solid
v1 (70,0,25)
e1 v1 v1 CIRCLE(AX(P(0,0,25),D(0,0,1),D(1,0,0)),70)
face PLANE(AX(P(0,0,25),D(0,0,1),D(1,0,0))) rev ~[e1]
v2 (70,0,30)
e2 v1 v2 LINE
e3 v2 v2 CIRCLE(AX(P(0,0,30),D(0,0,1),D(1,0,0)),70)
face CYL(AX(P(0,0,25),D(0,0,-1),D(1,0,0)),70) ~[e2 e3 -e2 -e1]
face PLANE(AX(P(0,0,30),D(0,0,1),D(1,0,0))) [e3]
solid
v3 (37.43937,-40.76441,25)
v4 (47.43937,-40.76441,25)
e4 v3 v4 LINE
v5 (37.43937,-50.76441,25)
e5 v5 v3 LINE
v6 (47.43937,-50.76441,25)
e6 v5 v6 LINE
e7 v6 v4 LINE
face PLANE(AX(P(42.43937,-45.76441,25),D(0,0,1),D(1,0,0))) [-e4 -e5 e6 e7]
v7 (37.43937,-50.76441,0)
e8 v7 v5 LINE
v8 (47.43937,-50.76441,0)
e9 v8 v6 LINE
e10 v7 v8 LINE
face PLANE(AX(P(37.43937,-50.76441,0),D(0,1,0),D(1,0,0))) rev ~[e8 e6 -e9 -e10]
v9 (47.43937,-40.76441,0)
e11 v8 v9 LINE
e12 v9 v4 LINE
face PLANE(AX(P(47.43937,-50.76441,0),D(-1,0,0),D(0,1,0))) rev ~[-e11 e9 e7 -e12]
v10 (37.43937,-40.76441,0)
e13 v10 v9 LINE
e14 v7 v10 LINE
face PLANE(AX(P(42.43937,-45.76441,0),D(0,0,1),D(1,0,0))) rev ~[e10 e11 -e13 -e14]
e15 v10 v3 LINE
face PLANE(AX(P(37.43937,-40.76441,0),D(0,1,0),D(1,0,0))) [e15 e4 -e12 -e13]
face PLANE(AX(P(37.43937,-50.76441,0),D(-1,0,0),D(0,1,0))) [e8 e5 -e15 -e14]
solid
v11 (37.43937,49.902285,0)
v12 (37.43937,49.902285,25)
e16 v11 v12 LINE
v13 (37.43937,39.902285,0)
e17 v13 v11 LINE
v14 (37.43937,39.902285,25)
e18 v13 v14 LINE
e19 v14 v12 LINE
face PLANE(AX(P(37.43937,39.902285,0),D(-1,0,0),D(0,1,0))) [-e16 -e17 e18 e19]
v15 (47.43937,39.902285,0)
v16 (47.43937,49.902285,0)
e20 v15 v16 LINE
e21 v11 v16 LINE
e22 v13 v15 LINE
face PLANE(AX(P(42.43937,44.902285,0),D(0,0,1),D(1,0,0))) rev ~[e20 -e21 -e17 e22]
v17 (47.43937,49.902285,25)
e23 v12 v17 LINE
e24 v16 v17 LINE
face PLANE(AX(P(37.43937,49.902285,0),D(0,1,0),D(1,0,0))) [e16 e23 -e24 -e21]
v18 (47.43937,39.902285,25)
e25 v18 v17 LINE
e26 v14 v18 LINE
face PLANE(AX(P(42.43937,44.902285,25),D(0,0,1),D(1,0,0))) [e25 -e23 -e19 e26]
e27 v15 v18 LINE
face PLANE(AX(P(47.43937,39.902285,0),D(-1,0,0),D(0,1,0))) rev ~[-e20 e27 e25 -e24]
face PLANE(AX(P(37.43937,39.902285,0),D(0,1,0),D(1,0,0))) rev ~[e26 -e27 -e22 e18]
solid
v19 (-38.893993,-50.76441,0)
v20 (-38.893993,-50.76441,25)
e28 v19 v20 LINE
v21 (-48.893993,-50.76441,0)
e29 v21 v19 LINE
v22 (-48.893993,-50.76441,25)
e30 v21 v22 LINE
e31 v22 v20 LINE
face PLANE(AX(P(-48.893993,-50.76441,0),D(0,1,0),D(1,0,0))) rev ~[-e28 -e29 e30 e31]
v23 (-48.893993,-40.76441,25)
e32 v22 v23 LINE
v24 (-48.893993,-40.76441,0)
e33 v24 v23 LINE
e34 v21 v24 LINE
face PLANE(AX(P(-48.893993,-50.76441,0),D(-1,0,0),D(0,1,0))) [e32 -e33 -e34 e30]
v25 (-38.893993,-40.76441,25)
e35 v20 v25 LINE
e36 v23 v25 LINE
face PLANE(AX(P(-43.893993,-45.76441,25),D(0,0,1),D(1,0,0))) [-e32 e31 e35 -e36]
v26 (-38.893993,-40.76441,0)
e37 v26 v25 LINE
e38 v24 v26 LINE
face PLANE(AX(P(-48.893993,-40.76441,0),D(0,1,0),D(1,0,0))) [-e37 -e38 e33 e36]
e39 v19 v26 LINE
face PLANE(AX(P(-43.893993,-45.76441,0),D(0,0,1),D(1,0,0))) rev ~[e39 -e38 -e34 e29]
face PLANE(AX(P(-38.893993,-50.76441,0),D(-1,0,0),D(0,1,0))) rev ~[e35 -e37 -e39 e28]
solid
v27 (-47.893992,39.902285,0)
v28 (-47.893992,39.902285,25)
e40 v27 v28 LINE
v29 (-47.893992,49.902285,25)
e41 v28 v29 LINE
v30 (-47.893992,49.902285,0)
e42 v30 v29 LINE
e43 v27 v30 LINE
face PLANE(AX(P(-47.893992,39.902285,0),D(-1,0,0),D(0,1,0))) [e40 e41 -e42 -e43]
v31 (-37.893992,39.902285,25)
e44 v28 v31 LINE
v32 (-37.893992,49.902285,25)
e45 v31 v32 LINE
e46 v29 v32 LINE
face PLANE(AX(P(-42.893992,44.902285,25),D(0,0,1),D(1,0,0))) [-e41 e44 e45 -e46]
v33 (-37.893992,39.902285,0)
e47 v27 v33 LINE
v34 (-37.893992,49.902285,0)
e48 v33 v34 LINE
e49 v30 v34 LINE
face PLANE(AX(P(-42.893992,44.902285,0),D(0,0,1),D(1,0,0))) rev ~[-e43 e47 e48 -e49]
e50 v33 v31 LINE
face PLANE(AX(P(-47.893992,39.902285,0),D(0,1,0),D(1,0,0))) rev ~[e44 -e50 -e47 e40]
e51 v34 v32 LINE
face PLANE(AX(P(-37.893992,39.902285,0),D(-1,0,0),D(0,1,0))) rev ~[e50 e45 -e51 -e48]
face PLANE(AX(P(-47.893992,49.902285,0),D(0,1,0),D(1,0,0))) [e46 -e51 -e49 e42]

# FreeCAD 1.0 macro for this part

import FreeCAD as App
import Part
import Sketcher

V = App.Vector

doc = App.newDocument("Part")
params = doc.addObject("Spreadsheet::Sheet", "Params")
for row, (alias, value) in enumerate([
    ("sketch1_width", "10 mm"),
    ("pad1_length", "25 mm"),
    ("sketch2_diameter", "140 mm"),
    ("pad2_length", "5 mm"),
], start=1):
    params.set(f"A{row}", alias)
    params.set(f"B{row}", "=" + value)
    params.setAlias(f"B{row}", alias)

body = doc.addObject("PartDesign::Body", "Body")
body.AllowCompound = True

# Sketch on XY plane
sketch1 = doc.addObject("Sketcher::SketchObject", "Sketch")
body.addObject(sketch1)
sketch1.AttachmentSupport = (doc.XY_Plane, [""])
sketch1.MapMode = "FlatFace"
sketch1.addGeometry([
    Part.LineSegment(V(-48, 50, 0), V(-48, 40, 0)),  # 0
    Part.LineSegment(V(-48, 40, 0), V(-38, 40, 0)),  # 1
    Part.LineSegment(V(-38, 40, 0), V(-38, 50, 0)),  # 2
    Part.LineSegment(V(-38, 50, 0), V(-48, 50, 0)),  # 3
    Part.LineSegment(V(37, 50, 0), V(37, 40, 0)),  # 4
    Part.LineSegment(V(37, 40, 0), V(47, 40, 0)),  # 5
    Part.LineSegment(V(47, 40, 0), V(47, 50, 0)),  # 6
    Part.LineSegment(V(47, 50, 0), V(37, 50, 0)),  # 7
    Part.LineSegment(V(37, -41, 0), V(37, -51, 0)),  # 8
    Part.LineSegment(V(37, -51, 0), V(47, -51, 0)),  # 9
    Part.LineSegment(V(47, -51, 0), V(47, -41, 0)),  # 10
    Part.LineSegment(V(47, -41, 0), V(37, -41, 0)),  # 11
    Part.LineSegment(V(-49, -41, 0), V(-49, -51, 0)),  # 12
    Part.LineSegment(V(-49, -51, 0), V(-39, -51, 0)),  # 13
    Part.LineSegment(V(-39, -51, 0), V(-39, -41, 0)),  # 14
    Part.LineSegment(V(-39, -41, 0), V(-49, -41, 0)),  # 15
], False)
sketch1.addConstraint([
    Sketcher.Constraint("Coincident", 0, 2, 1, 1),
    Sketcher.Constraint("Coincident", 1, 2, 2, 1),
    Sketcher.Constraint("Coincident", 2, 2, 3, 1),
    Sketcher.Constraint("Coincident", 3, 2, 0, 1),
    Sketcher.Constraint("Coincident", 4, 2, 5, 1),
    Sketcher.Constraint("Coincident", 5, 2, 6, 1),
    Sketcher.Constraint("Coincident", 6, 2, 7, 1),
    Sketcher.Constraint("Coincident", 7, 2, 4, 1),
    Sketcher.Constraint("Coincident", 8, 2, 9, 1),
    Sketcher.Constraint("Coincident", 9, 2, 10, 1),
    Sketcher.Constraint("Coincident", 10, 2, 11, 1),
    Sketcher.Constraint("Coincident", 11, 2, 8, 1),
    Sketcher.Constraint("Coincident", 12, 2, 13, 1),
    Sketcher.Constraint("Coincident", 13, 2, 14, 1),
    Sketcher.Constraint("Coincident", 14, 2, 15, 1),
    Sketcher.Constraint("Coincident", 15, 2, 12, 1),
    Sketcher.Constraint("Vertical", 0),
    Sketcher.Constraint("Horizontal", 1),
    Sketcher.Constraint("Vertical", 2),
    Sketcher.Constraint("Horizontal", 3),
    Sketcher.Constraint("Vertical", 4),
    Sketcher.Constraint("Horizontal", 5),
    Sketcher.Constraint("Vertical", 6),
    Sketcher.Constraint("Horizontal", 7),
    Sketcher.Constraint("Vertical", 8),
    Sketcher.Constraint("Horizontal", 9),
    Sketcher.Constraint("Vertical", 10),
    Sketcher.Constraint("Horizontal", 11),
    Sketcher.Constraint("Vertical", 12),
    Sketcher.Constraint("Horizontal", 13),
    Sketcher.Constraint("Vertical", 14),
    Sketcher.Constraint("Horizontal", 15),
    Sketcher.Constraint("Horizontal", 1, 2, 4, 2),
    Sketcher.Constraint("Horizontal", 3, 2, 6, 2),
    Sketcher.Constraint("Horizontal", 9, 2, 12, 2),
    Sketcher.Constraint("Horizontal", 11, 2, 14, 2),
    Sketcher.Constraint("Vertical", 7, 2, 8, 2),
    Sketcher.Constraint("Vertical", 6, 2, 9, 2),
    Sketcher.Constraint("Equal", 3, 5),
    Sketcher.Constraint("Equal", 11, 13),
    Sketcher.Constraint("Equal", 15, 0),
    Sketcher.Constraint("Equal", 6, 8),
    Sketcher.Constraint("DistanceX", 1, 1, 1, 2, 10.0),
    Sketcher.Constraint("DistanceX", 12, 2, 0, 2, 1.000001),
    Sketcher.Constraint("DistanceX", 0, 2, -1, 1, 47.893992),
    Sketcher.Constraint("DistanceX", -1, 1, 4, 2, 37.43937),
    Sketcher.Constraint("DistanceY", 8, 2, -1, 1, 50.76441),
    Sketcher.Constraint("DistanceY", -1, 1, 0, 2, 39.902285),
])
sketch1.setExpression("Constraints[42]", "Params.sketch1_width")
pad1 = doc.addObject("PartDesign::Pad", "Pad")
body.addObject(pad1)
pad1.Profile = sketch1
pad1.setExpression("Length", "Params.pad1_length")
body2 = doc.addObject("PartDesign::Body", "Body001")

# Sketch on XY plane
sketch2 = doc.addObject("Sketcher::SketchObject", "Sketch001")
body2.addObject(sketch2)
sketch2.AttachmentSupport = (doc.getObject("XY_Plane001"), [""])
sketch2.MapMode = "FlatFace"
sketch2.AttachmentOffset = App.Placement(V(0, 0, 25), App.Rotation())
sketch2.addGeometry(Part.Circle(V(0, 0, 0), V(0, 0, 1), 70), False)
sketch2.addConstraint([
    Sketcher.Constraint("Coincident", 0, 3, -1, 1),
    Sketcher.Constraint("Diameter", 0, 140.0),
])
sketch2.setExpression("Constraints[1]", "Params.sketch2_diameter")
pad2 = doc.addObject("PartDesign::Pad", "Pad001")
body2.addObject(pad2)
pad2.Profile = sketch2
pad2.setExpression("Length", "Params.pad2_length")

doc.recompute()
